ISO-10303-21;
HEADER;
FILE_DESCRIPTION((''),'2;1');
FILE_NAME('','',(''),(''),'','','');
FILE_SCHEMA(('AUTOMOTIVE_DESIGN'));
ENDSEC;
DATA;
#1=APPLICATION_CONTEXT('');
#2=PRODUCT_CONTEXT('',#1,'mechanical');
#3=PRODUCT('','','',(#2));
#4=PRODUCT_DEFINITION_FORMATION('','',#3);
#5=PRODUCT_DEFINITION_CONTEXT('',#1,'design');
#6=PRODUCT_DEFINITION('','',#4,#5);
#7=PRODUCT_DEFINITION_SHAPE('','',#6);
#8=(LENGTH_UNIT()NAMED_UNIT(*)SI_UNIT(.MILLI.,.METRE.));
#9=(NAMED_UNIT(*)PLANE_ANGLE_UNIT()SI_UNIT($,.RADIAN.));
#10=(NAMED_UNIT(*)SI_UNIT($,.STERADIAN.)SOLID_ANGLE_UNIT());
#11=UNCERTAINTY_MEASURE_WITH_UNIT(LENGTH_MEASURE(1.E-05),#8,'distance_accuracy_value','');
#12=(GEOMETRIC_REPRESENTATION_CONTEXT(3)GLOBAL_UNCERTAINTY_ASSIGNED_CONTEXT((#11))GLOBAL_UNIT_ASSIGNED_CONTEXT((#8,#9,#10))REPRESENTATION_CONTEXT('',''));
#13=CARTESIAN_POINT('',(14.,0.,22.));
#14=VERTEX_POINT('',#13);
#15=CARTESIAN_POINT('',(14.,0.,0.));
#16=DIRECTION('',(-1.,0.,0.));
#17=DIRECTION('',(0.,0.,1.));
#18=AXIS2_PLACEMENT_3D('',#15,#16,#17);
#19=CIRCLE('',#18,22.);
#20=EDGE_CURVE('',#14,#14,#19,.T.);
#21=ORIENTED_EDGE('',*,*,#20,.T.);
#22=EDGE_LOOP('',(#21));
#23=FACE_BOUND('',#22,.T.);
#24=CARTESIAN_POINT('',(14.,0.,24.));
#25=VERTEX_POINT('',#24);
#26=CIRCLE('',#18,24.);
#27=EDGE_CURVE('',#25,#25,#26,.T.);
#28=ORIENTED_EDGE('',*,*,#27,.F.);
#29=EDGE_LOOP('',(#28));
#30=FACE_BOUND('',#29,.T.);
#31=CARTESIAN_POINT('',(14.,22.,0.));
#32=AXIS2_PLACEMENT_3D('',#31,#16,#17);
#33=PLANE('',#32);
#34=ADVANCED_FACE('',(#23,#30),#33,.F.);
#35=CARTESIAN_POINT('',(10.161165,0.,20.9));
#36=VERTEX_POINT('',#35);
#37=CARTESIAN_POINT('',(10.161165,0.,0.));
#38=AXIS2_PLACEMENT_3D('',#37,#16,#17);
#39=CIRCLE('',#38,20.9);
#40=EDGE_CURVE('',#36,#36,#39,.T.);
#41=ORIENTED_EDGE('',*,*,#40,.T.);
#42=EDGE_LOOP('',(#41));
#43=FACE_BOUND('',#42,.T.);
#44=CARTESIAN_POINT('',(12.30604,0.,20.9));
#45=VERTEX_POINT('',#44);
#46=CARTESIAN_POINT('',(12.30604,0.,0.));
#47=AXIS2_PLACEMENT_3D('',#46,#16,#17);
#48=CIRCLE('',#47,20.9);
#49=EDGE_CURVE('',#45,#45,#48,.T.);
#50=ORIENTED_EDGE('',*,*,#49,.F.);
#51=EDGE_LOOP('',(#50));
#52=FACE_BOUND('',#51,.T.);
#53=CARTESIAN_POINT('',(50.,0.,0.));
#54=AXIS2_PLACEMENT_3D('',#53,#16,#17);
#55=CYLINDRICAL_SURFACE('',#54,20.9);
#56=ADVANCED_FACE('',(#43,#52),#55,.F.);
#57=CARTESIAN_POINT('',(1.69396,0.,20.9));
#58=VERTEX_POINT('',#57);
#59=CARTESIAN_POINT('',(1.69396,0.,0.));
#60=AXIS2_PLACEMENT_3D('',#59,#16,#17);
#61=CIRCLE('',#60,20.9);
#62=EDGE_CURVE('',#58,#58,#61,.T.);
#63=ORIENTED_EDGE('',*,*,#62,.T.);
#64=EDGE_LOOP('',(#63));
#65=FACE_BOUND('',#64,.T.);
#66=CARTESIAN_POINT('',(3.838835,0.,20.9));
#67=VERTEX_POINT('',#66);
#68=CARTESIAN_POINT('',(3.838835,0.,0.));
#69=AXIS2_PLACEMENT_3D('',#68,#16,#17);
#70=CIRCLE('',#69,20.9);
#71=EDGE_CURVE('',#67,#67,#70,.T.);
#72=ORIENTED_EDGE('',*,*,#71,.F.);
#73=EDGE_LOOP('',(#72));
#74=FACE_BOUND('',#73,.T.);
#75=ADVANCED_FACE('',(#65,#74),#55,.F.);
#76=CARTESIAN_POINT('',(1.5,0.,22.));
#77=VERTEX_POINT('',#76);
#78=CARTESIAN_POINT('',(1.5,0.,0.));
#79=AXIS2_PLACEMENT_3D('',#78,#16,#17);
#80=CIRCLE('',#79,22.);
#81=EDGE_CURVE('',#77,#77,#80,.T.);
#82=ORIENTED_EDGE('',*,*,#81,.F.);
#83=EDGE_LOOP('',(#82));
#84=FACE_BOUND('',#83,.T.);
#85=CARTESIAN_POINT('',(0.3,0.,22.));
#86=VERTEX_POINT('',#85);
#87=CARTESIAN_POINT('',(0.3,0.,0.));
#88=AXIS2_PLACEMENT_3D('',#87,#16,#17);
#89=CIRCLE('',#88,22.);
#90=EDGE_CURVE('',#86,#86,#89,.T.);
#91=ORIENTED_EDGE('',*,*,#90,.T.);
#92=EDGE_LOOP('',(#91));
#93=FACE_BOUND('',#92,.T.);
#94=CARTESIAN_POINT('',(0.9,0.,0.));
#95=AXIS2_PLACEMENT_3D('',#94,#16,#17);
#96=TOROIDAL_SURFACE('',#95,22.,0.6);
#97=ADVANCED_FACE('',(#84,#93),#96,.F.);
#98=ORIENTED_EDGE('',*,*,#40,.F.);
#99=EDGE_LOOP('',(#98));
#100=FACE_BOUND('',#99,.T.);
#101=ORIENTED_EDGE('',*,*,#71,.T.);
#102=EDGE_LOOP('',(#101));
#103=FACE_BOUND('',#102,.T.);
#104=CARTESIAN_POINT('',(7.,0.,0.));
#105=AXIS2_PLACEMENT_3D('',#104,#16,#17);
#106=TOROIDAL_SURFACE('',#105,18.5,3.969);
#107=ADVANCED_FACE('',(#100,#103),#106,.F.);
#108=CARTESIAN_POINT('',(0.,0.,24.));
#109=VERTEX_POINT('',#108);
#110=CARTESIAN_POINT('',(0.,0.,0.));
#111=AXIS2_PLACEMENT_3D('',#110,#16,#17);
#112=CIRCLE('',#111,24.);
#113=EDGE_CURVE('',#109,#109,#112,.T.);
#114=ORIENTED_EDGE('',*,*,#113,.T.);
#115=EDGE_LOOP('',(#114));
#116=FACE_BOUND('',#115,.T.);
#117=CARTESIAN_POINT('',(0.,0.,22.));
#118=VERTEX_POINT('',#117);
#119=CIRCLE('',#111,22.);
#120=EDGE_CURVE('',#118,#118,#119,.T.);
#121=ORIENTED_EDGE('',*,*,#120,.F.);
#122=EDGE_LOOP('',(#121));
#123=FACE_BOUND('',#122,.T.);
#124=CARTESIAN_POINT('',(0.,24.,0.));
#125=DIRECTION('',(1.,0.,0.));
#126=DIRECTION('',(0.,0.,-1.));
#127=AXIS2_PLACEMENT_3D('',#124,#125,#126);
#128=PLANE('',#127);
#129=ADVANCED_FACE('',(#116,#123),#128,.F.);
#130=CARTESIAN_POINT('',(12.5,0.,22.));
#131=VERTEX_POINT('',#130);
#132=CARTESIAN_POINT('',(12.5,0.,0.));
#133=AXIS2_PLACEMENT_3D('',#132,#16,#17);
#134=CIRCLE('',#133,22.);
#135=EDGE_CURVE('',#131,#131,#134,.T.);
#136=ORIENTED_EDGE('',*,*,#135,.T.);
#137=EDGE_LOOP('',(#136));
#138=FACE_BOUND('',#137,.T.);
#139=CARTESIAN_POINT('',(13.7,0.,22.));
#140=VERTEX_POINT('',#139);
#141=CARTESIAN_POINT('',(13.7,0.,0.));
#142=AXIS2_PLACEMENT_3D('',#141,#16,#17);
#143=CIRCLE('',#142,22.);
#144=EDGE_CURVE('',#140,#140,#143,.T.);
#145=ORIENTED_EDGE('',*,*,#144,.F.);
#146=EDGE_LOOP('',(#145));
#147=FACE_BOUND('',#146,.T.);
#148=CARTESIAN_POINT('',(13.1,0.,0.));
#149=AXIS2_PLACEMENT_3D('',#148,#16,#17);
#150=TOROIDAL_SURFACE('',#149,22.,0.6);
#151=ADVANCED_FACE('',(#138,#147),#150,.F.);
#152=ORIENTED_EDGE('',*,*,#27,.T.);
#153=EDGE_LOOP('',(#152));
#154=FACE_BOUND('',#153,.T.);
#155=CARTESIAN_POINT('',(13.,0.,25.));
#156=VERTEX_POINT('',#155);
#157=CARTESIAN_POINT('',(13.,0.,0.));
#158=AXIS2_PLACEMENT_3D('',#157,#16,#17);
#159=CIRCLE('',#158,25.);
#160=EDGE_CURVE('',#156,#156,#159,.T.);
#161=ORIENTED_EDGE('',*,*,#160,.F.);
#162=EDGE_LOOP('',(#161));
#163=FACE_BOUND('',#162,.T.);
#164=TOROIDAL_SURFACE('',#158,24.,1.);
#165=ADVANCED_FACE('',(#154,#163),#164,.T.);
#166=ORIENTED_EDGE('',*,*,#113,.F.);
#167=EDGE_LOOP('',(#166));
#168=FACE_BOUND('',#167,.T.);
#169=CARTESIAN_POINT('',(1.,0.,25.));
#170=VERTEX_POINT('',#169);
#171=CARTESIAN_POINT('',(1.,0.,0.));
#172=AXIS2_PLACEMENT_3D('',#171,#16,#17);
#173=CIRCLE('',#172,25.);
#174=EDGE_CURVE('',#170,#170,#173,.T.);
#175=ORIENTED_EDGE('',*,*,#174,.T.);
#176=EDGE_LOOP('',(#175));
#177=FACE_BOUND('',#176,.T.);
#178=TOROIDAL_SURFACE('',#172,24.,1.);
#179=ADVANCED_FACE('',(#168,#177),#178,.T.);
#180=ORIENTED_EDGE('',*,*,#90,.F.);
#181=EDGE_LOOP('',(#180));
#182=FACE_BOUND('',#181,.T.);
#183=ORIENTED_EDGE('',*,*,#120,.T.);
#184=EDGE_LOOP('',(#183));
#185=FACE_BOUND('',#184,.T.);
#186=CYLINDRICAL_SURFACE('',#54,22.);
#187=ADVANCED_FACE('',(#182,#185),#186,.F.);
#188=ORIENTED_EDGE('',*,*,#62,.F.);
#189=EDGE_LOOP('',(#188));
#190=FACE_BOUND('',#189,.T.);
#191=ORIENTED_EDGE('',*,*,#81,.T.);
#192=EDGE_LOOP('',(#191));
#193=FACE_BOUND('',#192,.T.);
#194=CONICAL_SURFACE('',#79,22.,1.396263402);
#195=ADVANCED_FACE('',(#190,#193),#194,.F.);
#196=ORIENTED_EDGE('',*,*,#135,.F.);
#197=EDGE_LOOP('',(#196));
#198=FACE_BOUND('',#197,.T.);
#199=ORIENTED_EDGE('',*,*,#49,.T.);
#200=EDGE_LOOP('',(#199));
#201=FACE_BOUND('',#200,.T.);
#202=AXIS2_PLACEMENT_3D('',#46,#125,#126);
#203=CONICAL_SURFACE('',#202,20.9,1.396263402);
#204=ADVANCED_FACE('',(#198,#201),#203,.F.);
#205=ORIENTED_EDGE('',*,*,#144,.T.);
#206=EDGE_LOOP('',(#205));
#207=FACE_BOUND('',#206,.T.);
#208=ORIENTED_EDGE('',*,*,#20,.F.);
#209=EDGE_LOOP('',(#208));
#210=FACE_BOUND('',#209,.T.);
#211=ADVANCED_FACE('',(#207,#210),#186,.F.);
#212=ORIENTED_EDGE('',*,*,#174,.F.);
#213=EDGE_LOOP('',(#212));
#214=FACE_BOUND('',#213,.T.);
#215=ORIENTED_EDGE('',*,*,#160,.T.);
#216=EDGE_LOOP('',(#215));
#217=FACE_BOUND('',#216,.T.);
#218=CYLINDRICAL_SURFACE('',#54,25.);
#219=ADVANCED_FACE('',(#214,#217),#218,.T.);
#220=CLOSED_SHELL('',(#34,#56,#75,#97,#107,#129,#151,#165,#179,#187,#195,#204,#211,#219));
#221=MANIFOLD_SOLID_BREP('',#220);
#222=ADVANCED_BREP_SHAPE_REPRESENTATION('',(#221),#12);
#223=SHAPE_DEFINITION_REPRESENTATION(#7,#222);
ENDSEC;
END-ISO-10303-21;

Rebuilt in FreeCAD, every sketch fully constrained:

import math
import FreeCAD as App
import Part
import Sketcher

V = App.Vector
Q = App.Units.Quantity

doc = App.newDocument("Part")
body = doc.addObject("PartDesign::Body", "Body")

# Sketch on XY plane
sketch1 = doc.addObject("Sketcher::SketchObject", "Sketch")
body.addObject(sketch1)
sketch1.AttachmentSupport = (doc.XY_Plane, [""])
sketch1.MapMode = "FlatFace"
sketch1.addGeometry([
    Part.LineSegment(V(0, 22, 0), V(0.3, 22, 0)),  # 0
    Part.ArcOfCircle(Part.Circle(V(0.9, 22, 0), V(0, 0, 1), 0.6), math.radians(0), math.radians(180)),  # 1
    Part.LineSegment(V(1.5, 22, 0), V(1.69396, 20.9, 0)),  # 2
    Part.LineSegment(V(1.69396, 20.9, 0), V(3.838835, 20.9, 0)),  # 3
    Part.ArcOfCircle(Part.Circle(V(7, 18.5, 0), V(0, 0, 1), 3.969), math.radians(37.206273), math.radians(142.793727)),  # 4
    Part.LineSegment(V(10.161165, 20.9, 0), V(12.30604, 20.9, 0)),  # 5
    Part.LineSegment(V(12.30604, 20.9, 0), V(12.5, 22, 0)),  # 6
    Part.ArcOfCircle(Part.Circle(V(13.1, 22, 0), V(0, 0, 1), 0.6), math.radians(0), math.radians(180)),  # 7
    Part.LineSegment(V(13.7, 22, 0), V(14, 22, 0)),  # 8
    Part.LineSegment(V(14, 22, 0), V(14, 24, 0)),  # 9
    Part.ArcOfCircle(Part.Circle(V(13, 24, 0), V(0, 0, 1), 1), math.radians(0), math.radians(90)),  # 10
    Part.LineSegment(V(13, 25, 0), V(1, 25, 0)),  # 11
    Part.ArcOfCircle(Part.Circle(V(1, 24, 0), V(0, 0, 1), 1), math.radians(90), math.radians(180)),  # 12
    Part.LineSegment(V(0, 24, 0), V(0, 22, 0)),  # 13
], False)
sketch1.addConstraint([
    Sketcher.Constraint("Coincident", 0, 2, 1, 2),
    Sketcher.Constraint("Coincident", 1, 1, 2, 1),
    Sketcher.Constraint("Coincident", 2, 2, 3, 1),
    Sketcher.Constraint("Coincident", 3, 2, 4, 2),
    Sketcher.Constraint("Coincident", 4, 1, 5, 1),
    Sketcher.Constraint("Coincident", 5, 2, 6, 1),
    Sketcher.Constraint("Coincident", 6, 2, 7, 2),
    Sketcher.Constraint("Coincident", 7, 1, 8, 1),
    Sketcher.Constraint("Coincident", 8, 2, 9, 1),
    Sketcher.Constraint("Tangent", 9, 2, 10, 1),
    Sketcher.Constraint("Tangent", 10, 2, 11, 1),
    Sketcher.Constraint("Tangent", 11, 2, 12, 1),
    Sketcher.Constraint("Tangent", 12, 2, 13, 1),
    Sketcher.Constraint("Coincident", 13, 2, 0, 1),
    Sketcher.Constraint("Horizontal", 0),
    Sketcher.Constraint("Horizontal", 3),
    Sketcher.Constraint("Horizontal", 5),
    Sketcher.Constraint("Horizontal", 8),
    Sketcher.Constraint("Vertical", 9),
    Sketcher.Constraint("Horizontal", 11),
    Sketcher.Constraint("Vertical", 13),
    Sketcher.Constraint("Equal", 1, 7),
    Sketcher.Constraint("Equal", 10, 12),
    Sketcher.Constraint("PointOnObject", 12, 2, -2),
    Sketcher.Constraint("Horizontal", 1, 3, 7, 3),
    Sketcher.Constraint("Horizontal", 7, 3, 0, 2),
    Sketcher.Constraint("Horizontal", 0, 2, 1, 1),
    Sketcher.Constraint("Horizontal", 3, 2, 4, 1),
    Sketcher.Constraint("Horizontal", 1, 1, 6, 2),
    Sketcher.Constraint("Horizontal", 6, 2, 7, 1),
    Sketcher.Constraint("Equal", 3, 5),
    Sketcher.Constraint("Equal", 0, 8),
    Sketcher.Constraint("Equal", 2, 6),
    Sketcher.Constraint("Radius", 10, 1.0),
    Sketcher.Constraint("Radius", 1, 0.6),
    Sketcher.Constraint("DistanceX", 11, 2, 11, 1, 12.0),
    Sketcher.Constraint("DistanceY", 9, 1, 9, 2, 2.0),
    Sketcher.Constraint("Angle", 2, Q("-80 deg")),
    Sketcher.Constraint("DistanceX", 0, 1, 0, 2, 0.3),
    Sketcher.Constraint("DistanceY", -1, 1, 1, 3, 22.0),
    Sketcher.Constraint("Radius", 4, 3.969),
    Sketcher.Constraint("DistanceY", -1, 1, 4, 3, 18.5),
    Sketcher.Constraint("DistanceY", -1, 1, 2, 2, 20.9),
])
revolution = doc.addObject("PartDesign::Revolution", "Revolution")
body.addObject(revolution)
revolution.Profile = sketch1
revolution.ReferenceAxis = (sketch1, ["H_Axis"])
revolution.Angle = 360

doc.recompute()
